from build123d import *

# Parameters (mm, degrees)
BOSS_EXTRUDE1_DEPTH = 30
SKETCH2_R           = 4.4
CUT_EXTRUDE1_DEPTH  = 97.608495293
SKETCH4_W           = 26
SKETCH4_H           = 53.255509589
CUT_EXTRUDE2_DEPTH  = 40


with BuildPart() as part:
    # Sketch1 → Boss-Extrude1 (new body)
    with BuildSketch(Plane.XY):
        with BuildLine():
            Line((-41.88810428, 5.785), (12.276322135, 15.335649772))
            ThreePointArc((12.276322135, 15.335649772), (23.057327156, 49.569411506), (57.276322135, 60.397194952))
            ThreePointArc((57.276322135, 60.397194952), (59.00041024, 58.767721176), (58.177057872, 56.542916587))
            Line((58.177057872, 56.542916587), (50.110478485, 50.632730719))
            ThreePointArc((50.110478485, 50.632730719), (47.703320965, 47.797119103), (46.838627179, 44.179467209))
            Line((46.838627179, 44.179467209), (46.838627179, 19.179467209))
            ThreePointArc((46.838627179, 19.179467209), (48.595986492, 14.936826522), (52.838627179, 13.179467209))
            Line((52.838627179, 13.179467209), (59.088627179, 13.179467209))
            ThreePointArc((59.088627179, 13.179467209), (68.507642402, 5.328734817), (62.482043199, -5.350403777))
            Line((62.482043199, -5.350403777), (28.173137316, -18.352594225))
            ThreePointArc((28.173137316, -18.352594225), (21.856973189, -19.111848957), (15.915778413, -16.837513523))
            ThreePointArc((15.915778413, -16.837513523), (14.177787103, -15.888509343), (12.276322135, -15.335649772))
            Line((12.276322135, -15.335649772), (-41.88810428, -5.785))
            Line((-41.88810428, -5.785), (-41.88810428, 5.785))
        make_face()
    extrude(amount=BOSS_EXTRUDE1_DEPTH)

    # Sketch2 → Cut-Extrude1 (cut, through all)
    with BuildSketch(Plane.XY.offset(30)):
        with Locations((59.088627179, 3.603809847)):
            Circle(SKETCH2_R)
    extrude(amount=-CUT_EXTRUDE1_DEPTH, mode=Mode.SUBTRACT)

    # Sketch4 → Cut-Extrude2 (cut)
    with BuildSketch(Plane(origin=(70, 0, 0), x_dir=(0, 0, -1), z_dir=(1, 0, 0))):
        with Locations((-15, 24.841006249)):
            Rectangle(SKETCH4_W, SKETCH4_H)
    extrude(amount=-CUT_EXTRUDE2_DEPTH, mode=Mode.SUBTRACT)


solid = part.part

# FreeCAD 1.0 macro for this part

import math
import FreeCAD as App
import Part
import Sketcher

V = App.Vector
Q = App.Units.Quantity

doc = App.newDocument("Part")
params = doc.addObject("Spreadsheet::Sheet", "Params")
for row, (alias, value) in enumerate([
    ("sketch1_radius", "6 mm"),
    ("sketch1_radius2", "8 mm"),
    ("sketch1_height", "25 mm"),
    ("sketch1_radius3", "9.15 mm"),
    ("sketch1_radius4", "13.24 mm"),
    ("pad1_length", "30 mm"),
    ("sketch2_diameter", "8.8 mm"),
    ("sketch3_height", "26 mm"),
    ("pocket2_length", "40 mm"),
], start=1):
    params.set(f"A{row}", alias)
    params.set(f"B{row}", "=" + value)
    params.setAlias(f"B{row}", alias)

body = doc.addObject("PartDesign::Body", "Body")

sketch1 = body.newObject("Sketcher::SketchObject", "Sketch")
sketch1.AttachmentSupport = (doc.getObject("XY_Plane"), [""])
sketch1.MapMode = "FlatFace"
sketch1.addGeometry([
    Part.LineSegment(V(12.3, 15.3, 0), V(-41.9, 5.8, 0)),
    Part.LineSegment(V(-41.9, 5.8, 0), V(-41.9, -5.8, 0)),
    Part.LineSegment(V(-41.9, -5.8, 0), V(12.3, -15.3, 0)),
    Part.ArcOfCircle(Part.Circle(V(10.7, -24.3, 0), V(0, 0, 1), 9.1), math.radians(55), math.radians(80)),
    Part.ArcOfCircle(Part.Circle(V(23.5, -6, 0), V(0, 0, 1), 13.2), math.radians(-125), math.radians(-69)),
    Part.LineSegment(V(28.2, -18.4, 0), V(62.5, -5.4, 0)),
    Part.ArcOfCircle(Part.Circle(V(59.1, 3.6, 0), V(0, 0, 1), 9.6), math.radians(-69), math.radians(90)),
    Part.LineSegment(V(59.1, 13.2, 0), V(52.8, 13.2, 0)),
    Part.ArcOfCircle(Part.Circle(V(52.8, 19.2, 0), V(0, 0, 1), 6), math.radians(180), math.radians(270)),
    Part.LineSegment(V(46.8, 19.2, 0), V(46.8, 44.2, 0)),
    Part.ArcOfCircle(Part.Circle(V(54.8, 44.2, 0), V(0, 0, 1), 8), math.radians(126), math.radians(180)),
    Part.LineSegment(V(50.1, 50.6, 0), V(58.2, 56.5, 0)),
    Part.ArcOfCircle(Part.Circle(V(56.9, 58.3, 0), V(0, 0, 1), 2.2), math.radians(-54), math.radians(80)),
    Part.ArcOfCircle(Part.Circle(V(50.6, 22.1, 0), V(0, 0, 1), 38.9), math.radians(80), math.radians(190)),
], False)
sketch1.addConstraint([
    Sketcher.Constraint("Coincident", 0, 2, 1, 1),
    Sketcher.Constraint("Coincident", 1, 2, 2, 1),
    Sketcher.Constraint("Tangent", 2, 2, 3, 2),
    Sketcher.Constraint("Tangent", 3, 1, 4, 1),
    Sketcher.Constraint("Tangent", 4, 2, 5, 1),
    Sketcher.Constraint("Tangent", 5, 2, 6, 1),
    Sketcher.Constraint("Tangent", 6, 2, 7, 1),
    Sketcher.Constraint("Tangent", 7, 2, 8, 2),
    Sketcher.Constraint("Tangent", 8, 1, 9, 1),
    Sketcher.Constraint("Tangent", 9, 2, 10, 2),
    Sketcher.Constraint("Tangent", 10, 1, 11, 1),
    Sketcher.Constraint("Tangent", 11, 2, 12, 1),
    Sketcher.Constraint("Tangent", 12, 2, 13, 1),
    Sketcher.Constraint("Coincident", 13, 2, 0, 1),
    Sketcher.Constraint("Vertical", 1),
    Sketcher.Constraint("Horizontal", 7),
    Sketcher.Constraint("Vertical", 9),
    Sketcher.Constraint("Symmetric", 2, 2, 13, 2, -1),
    Sketcher.Constraint("Equal", 0, 2),
    Sketcher.Constraint("Radius", 8, 6.0),
    Sketcher.Constraint("Radius", 10, 8.0),
    Sketcher.Constraint("DistanceY", 9, 1, 9, 2, 25.0),
    Sketcher.Constraint("Angle", 0, Q("-170 deg")),
    Sketcher.Constraint("Radius", 3, 9.15),
    Sketcher.Constraint("Radius", 4, 13.24),
    Sketcher.Constraint("Radius", 13, 38.89),
    Sketcher.Constraint("Distance", 0, 55.0),
    Sketcher.Constraint("Distance", 11, 10.0),
    Sketcher.Constraint("DistanceX", 7, 2, 7, 1, 6.25),
    Sketcher.Constraint("DistanceY", 1, 2, 1, 1, 11.57),
    Sketcher.Constraint("Radius", 6, 9.575657),
    Sketcher.Constraint("Radius", 12, 2.151183),
    Sketcher.Constraint("DistanceX", 0, 2, 13, 3, 92.4636),
    Sketcher.Constraint("DistanceX", -1, 1, 3, 3, 10.687441),
    Sketcher.Constraint("DistanceY", -1, 1, 6, 3, 3.60381),
    Sketcher.Constraint("DistanceX", -1, 1, 12, 3, 56.905669),
    Sketcher.Constraint("DistanceX", -1, 1, 3, 1, 15.915778),
])
sketch1.setExpression("Constraints[19]", "Params.sketch1_radius")
sketch1.setExpression("Constraints[20]", "Params.sketch1_radius2")
sketch1.setExpression("Constraints[21]", "Params.sketch1_height")
sketch1.setExpression("Constraints[23]", "Params.sketch1_radius3")
sketch1.setExpression("Constraints[24]", "Params.sketch1_radius4")
pad1 = body.newObject("PartDesign::Pad", "Pad")
pad1.Profile = sketch1
pad1.setExpression("Length", "Params.pad1_length")

sketch2 = body.newObject("Sketcher::SketchObject", "Sketch001")
sketch2.AttachmentSupport = (doc.getObject("XY_Plane"), [""])
sketch2.MapMode = "FlatFace"
sketch2.AttachmentOffset = App.Placement(V(0, 0, 30), App.Rotation())
sketch2.addGeometry(Part.Circle(V(59.1, 3.6, 0), V(0, 0, 1), 4.4), False)
sketch2.addConstraint([
    Sketcher.Constraint("Diameter", 0, 8.8),
    Sketcher.Constraint("DistanceY", -1, 1, 0, 3, 3.60381),
    Sketcher.Constraint("DistanceX", -1, 1, 0, 3, 59.088627),
])
sketch2.setExpression("Constraints[0]", "Params.sketch2_diameter")
pocket1 = body.newObject("PartDesign::Pocket", "Pocket")
pocket1.Profile = sketch2
pocket1.Type = "ThroughAll"

sketch3 = body.newObject("Sketcher::SketchObject", "Sketch002")
sketch3.AttachmentSupport = (doc.getObject("YZ_Plane"), [""])
sketch3.MapMode = "FlatFace"
sketch3.AttachmentOffset = App.Placement(V(0, 0, 70), App.Rotation())
sketch3.addGeometry([
    Part.LineSegment(V(51, 28, 0), V(-2, 28, 0)),
    Part.LineSegment(V(-2, 28, 0), V(-2, 2, 0)),
    Part.LineSegment(V(-2, 2, 0), V(51, 2, 0)),
    Part.LineSegment(V(51, 2, 0), V(51, 28, 0)),
], False)
sketch3.addConstraint([
    Sketcher.Constraint("Coincident", 0, 2, 1, 1),
    Sketcher.Constraint("Coincident", 1, 2, 2, 1),
    Sketcher.Constraint("Coincident", 2, 2, 3, 1),
    Sketcher.Constraint("Coincident", 3, 2, 0, 1),
    Sketcher.Constraint("Horizontal", 0),
    Sketcher.Constraint("Vertical", 1),
    Sketcher.Constraint("Horizontal", 2),
    Sketcher.Constraint("Vertical", 3),
    Sketcher.Constraint("DistanceY", 1, 2, 1, 1, 26.0),
    Sketcher.Constraint("DistanceY", -1, 1, 0, 2, 28.0),
    Sketcher.Constraint("DistanceX", 0, 2, 0, 1, 53.25551),
    Sketcher.Constraint("DistanceX", 0, 2, -1, 1, 1.786749),
])
sketch3.setExpression("Constraints[8]", "Params.sketch3_height")
pocket2 = body.newObject("PartDesign::Pocket", "Pocket001")
pocket2.Profile = sketch3
pocket2.setExpression("Length", "Params.pocket2_length")

doc.recompute()
